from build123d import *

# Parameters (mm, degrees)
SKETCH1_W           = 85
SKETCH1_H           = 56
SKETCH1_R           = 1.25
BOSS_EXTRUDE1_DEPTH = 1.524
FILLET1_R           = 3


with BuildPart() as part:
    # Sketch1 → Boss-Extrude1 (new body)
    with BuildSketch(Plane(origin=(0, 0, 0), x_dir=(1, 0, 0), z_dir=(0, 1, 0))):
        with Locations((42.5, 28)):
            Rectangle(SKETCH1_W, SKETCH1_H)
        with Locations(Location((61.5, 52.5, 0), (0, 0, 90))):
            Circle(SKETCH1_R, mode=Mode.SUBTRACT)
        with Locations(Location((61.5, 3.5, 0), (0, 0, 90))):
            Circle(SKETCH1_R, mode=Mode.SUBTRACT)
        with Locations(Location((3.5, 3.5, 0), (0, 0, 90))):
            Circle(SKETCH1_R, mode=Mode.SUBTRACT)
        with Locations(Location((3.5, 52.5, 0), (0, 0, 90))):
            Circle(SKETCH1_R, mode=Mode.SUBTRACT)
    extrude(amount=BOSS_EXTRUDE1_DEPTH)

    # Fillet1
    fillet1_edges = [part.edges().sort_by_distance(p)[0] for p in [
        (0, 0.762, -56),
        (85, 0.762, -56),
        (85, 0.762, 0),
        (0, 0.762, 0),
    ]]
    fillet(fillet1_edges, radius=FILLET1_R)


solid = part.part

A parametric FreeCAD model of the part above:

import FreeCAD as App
import Part
import Sketcher
Q = App.Units.Quantity


def edges_at(feature, points):
    """Names of the edges that pass closest to the given points."""
    edges = feature.Shape.Edges
    near = lambda p: min(range(len(edges)), key=lambda i: edges[i].distToShape(Part.Vertex(*p))[0])
    return sorted({f"Edge{near(p) + 1}" for p in points})

doc = App.newDocument("Part")
body = doc.addObject("PartDesign::Body", "Body")

# Sketch on XZ plane
sketch1 = doc.addObject("Sketcher::SketchObject", "Sketch")
body.addObject(sketch1)
sketch1.AttachmentSupport = (doc.XZ_Plane, [""])
sketch1.MapMode = "FlatFace"
sketch1.addGeometry([
    Part.LineSegment(App.Vector(0, -56, 0), App.Vector(0, 0, 0)),  # 0
    Part.LineSegment(App.Vector(0, 0, 0), App.Vector(85, 0, 0)),  # 1
    Part.LineSegment(App.Vector(85, 0, 0), App.Vector(85, -56, 0)),  # 2
    Part.LineSegment(App.Vector(85, -56, 0), App.Vector(0, -56, 0)),  # 3
    Part.Circle(App.Vector(3.5, -3.5, 0), App.Vector(0, 0, 1), 1.2),  # 4
    Part.Circle(App.Vector(61.5, -3.5, 0), App.Vector(0, 0, 1), 1.2),  # 5
    Part.Circle(App.Vector(3.5, -52.5, 0), App.Vector(0, 0, 1), 1.2),  # 6
    Part.Circle(App.Vector(61.5, -52.5, 0), App.Vector(0, 0, 1), 1.2),  # 7
], False)
sketch1.addConstraint([
    Sketcher.Constraint("Coincident", 0, 2, 1, 1),
    Sketcher.Constraint("Coincident", 1, 2, 2, 1),
    Sketcher.Constraint("Coincident", 2, 2, 3, 1),
    Sketcher.Constraint("Coincident", 3, 2, 0, 1),
    Sketcher.Constraint("Vertical", 0),
    Sketcher.Constraint("Horizontal", 1),
    Sketcher.Constraint("Vertical", 2),
    Sketcher.Constraint("Horizontal", 3),
    Sketcher.Constraint("Coincident", 0, 2, -1, 1),
    Sketcher.Constraint("Equal", 4, 5),
    Sketcher.Constraint("Equal", 5, 6),
    Sketcher.Constraint("Equal", 6, 7),
    Sketcher.Constraint("Horizontal", 4, 3, 5, 3),
    Sketcher.Constraint("Horizontal", 6, 3, 7, 3),
    Sketcher.Constraint("Vertical", 4, 3, 6, 3),
    Sketcher.Constraint("Vertical", 5, 3, 7, 3),
    Sketcher.Constraint("Diameter", 4, Q("2.5 mm")),
    Sketcher.Constraint("DistanceX", 1, 1, 1, 2, Q("85 mm")),
    Sketcher.Constraint("DistanceY", 0, 1, 0, 2, Q("56 mm")),
    Sketcher.Constraint("DistanceX", 4, 3, 5, 3, Q("58 mm")),
    Sketcher.Constraint("DistanceY", 6, 3, 4, 3, Q("49 mm")),
    Sketcher.Constraint("DistanceX", -1, 1, 4, 3, Q("3.5 mm")),
    Sketcher.Constraint("DistanceY", 4, 3, -1, 1, Q("3.5 mm")),
])
pad1 = doc.addObject("PartDesign::Pad", "Pad")
body.addObject(pad1)
pad1.Profile = sketch1
pad1.Length = 1.524
pad1.Reversed = True
doc.recompute()

fillet = doc.addObject("PartDesign::Fillet", "Fillet")
body.addObject(fillet)
fillet.Base = (pad1, edges_at(pad1, [
    (0, 0.762, -56),
    (85, 0.762, -56),
    (85, 0.762, 0),
    (0, 0.762, 0),
]))
fillet.Radius = 3

doc.recompute()
